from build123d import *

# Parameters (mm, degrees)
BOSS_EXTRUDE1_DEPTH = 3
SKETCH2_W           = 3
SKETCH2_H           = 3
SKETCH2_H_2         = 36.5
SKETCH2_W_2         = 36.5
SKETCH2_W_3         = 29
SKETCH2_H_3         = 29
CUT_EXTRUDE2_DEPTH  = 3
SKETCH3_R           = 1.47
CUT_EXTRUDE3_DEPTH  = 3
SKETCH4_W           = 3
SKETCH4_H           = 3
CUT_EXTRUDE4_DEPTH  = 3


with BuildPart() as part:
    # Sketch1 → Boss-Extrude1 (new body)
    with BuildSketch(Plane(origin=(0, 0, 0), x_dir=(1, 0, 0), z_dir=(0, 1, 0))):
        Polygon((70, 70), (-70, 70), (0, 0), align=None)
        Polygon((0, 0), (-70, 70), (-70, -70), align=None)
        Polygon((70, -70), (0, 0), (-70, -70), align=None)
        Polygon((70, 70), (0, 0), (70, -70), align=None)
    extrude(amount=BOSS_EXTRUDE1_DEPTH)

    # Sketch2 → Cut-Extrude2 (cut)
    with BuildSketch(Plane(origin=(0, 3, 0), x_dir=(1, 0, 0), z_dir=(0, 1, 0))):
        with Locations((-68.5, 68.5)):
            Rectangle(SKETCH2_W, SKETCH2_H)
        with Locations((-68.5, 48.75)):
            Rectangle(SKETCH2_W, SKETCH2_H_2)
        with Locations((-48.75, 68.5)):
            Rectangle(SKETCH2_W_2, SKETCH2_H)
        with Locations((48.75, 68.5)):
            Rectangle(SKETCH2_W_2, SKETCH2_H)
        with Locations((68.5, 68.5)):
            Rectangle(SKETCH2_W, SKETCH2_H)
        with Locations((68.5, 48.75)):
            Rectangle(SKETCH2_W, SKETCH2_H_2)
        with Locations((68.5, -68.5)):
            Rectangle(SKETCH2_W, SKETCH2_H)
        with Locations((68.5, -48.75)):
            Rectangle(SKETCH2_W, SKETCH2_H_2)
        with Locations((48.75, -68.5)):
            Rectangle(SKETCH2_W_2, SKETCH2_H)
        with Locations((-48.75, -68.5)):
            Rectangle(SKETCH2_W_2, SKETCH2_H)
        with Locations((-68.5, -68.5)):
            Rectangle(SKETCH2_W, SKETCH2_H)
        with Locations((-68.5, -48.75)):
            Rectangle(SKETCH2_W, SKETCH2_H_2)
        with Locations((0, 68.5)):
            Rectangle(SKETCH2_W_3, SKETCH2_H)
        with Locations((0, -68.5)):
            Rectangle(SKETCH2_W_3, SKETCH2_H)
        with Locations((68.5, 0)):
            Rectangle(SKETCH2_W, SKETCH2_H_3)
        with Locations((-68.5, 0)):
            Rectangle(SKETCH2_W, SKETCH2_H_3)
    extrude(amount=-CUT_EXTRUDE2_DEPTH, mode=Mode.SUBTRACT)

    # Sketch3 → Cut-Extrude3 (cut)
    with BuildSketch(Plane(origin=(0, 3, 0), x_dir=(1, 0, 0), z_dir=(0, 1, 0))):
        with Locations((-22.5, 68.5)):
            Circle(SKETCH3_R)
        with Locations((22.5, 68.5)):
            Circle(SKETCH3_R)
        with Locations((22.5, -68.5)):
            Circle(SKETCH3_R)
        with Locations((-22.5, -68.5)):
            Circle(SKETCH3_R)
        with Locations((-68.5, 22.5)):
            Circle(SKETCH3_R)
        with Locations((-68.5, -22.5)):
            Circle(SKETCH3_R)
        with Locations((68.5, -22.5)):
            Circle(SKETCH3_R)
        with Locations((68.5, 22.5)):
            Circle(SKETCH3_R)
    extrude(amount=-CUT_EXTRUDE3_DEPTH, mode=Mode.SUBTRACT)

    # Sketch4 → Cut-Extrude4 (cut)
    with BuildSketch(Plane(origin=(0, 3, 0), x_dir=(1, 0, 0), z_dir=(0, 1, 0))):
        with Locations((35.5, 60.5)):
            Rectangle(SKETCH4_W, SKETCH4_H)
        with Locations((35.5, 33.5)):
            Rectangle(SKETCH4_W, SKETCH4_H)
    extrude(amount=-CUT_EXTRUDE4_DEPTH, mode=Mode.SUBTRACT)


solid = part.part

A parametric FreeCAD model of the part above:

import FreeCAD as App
import Part
import Sketcher
Q = App.Units.Quantity

doc = App.newDocument("Part")
body = doc.addObject("PartDesign::Body", "Body")

# Sketch on XZ plane
sketch1 = body.newObject("Sketcher::SketchObject", "Sketch")
sketch1.AttachmentSupport = (doc.getObject("XZ_Plane"), [""])
sketch1.MapMode = "FlatFace"
sketch1.addGeometry(Part.LineSegment(App.Vector(70, -70, 0), App.Vector(-70, -70, 0)), False)
sketch1.addGeometry(Part.LineSegment(App.Vector(-70, -70, 0), App.Vector(-70, 70, 0)), False)
sketch1.addGeometry(Part.LineSegment(App.Vector(-70, 70, 0), App.Vector(70, 70, 0)), False)
sketch1.addGeometry(Part.LineSegment(App.Vector(70, 70, 0), App.Vector(70, -70, 0)), False)
sketch1.addConstraint(Sketcher.Constraint("Coincident", 0, 2, 1, 1))
sketch1.addConstraint(Sketcher.Constraint("Coincident", 1, 2, 2, 1))
sketch1.addConstraint(Sketcher.Constraint("Coincident", 2, 2, 3, 1))
sketch1.addConstraint(Sketcher.Constraint("Coincident", 3, 2, 0, 1))
sketch1.addConstraint(Sketcher.Constraint("Horizontal", 0))
sketch1.addConstraint(Sketcher.Constraint("Vertical", 1))
sketch1.addConstraint(Sketcher.Constraint("Horizontal", 2))
sketch1.addConstraint(Sketcher.Constraint("Vertical", 3))
sketch1.addConstraint(Sketcher.Constraint("Symmetric", 0, 2, 2, 2, -1, 1))
sketch1.addConstraint(Sketcher.Constraint("Equal", 2, 1))
sketch1.addConstraint(Sketcher.Constraint("DistanceX", 0, 2, 0, 1, Q("140 mm")))
pad1 = body.newObject("PartDesign::Pad", "Pad")
pad1.Profile = sketch1
pad1.Length = 3
pad1.Reversed = True

# Sketch on XZ plane
sketch2 = body.newObject("Sketcher::SketchObject", "Sketch001")
sketch2.AttachmentSupport = (doc.getObject("XZ_Plane"), [""])
sketch2.MapMode = "FlatFace"
sketch2.AttachmentOffset = App.Placement(App.Vector(0, 0, -3), App.Rotation())
sketch2.addGeometry(Part.LineSegment(App.Vector(-70, -70, 0), App.Vector(-70, -30.5, 0)), False)
sketch2.addGeometry(Part.LineSegment(App.Vector(-70, -30.5, 0), App.Vector(-67, -30.5, 0)), False)
sketch2.addGeometry(Part.LineSegment(App.Vector(-67, -30.5, 0), App.Vector(-67, -67, 0)), False)
sketch2.addGeometry(Part.LineSegment(App.Vector(-67, -67, 0), App.Vector(-30.5, -67, 0)), False)
sketch2.addGeometry(Part.LineSegment(App.Vector(-30.5, -67, 0), App.Vector(-30.5, -70, 0)), False)
sketch2.addGeometry(Part.LineSegment(App.Vector(-30.5, -70, 0), App.Vector(-70, -70, 0)), False)
sketch2.addGeometry(Part.LineSegment(App.Vector(30.5, -70, 0), App.Vector(30.5, -67, 0)), False)
sketch2.addGeometry(Part.LineSegment(App.Vector(30.5, -67, 0), App.Vector(67, -67, 0)), False)
sketch2.addGeometry(Part.LineSegment(App.Vector(67, -67, 0), App.Vector(67, -30.5, 0)), False)
sketch2.addGeometry(Part.LineSegment(App.Vector(67, -30.5, 0), App.Vector(70, -30.5, 0)), False)
sketch2.addGeometry(Part.LineSegment(App.Vector(70, -30.5, 0), App.Vector(70, -70, 0)), False)
sketch2.addGeometry(Part.LineSegment(App.Vector(70, -70, 0), App.Vector(30.5, -70, 0)), False)
sketch2.addGeometry(Part.LineSegment(App.Vector(70, 70, 0), App.Vector(70, 30.5, 0)), False)
sketch2.addGeometry(Part.LineSegment(App.Vector(70, 30.5, 0), App.Vector(67, 30.5, 0)), False)
sketch2.addGeometry(Part.LineSegment(App.Vector(67, 30.5, 0), App.Vector(67, 67, 0)), False)
sketch2.addGeometry(Part.LineSegment(App.Vector(67, 67, 0), App.Vector(30.5, 67, 0)), False)
sketch2.addGeometry(Part.LineSegment(App.Vector(30.5, 67, 0), App.Vector(30.5, 70, 0)), False)
sketch2.addGeometry(Part.LineSegment(App.Vector(30.5, 70, 0), App.Vector(70, 70, 0)), False)
sketch2.addGeometry(Part.LineSegment(App.Vector(-30.5, 70, 0), App.Vector(-30.5, 67, 0)), False)
sketch2.addGeometry(Part.LineSegment(App.Vector(-30.5, 67, 0), App.Vector(-67, 67, 0)), False)
sketch2.addGeometry(Part.LineSegment(App.Vector(-67, 67, 0), App.Vector(-67, 30.5, 0)), False)
sketch2.addGeometry(Part.LineSegment(App.Vector(-67, 30.5, 0), App.Vector(-70, 30.5, 0)), False)
sketch2.addGeometry(Part.LineSegment(App.Vector(-70, 30.5, 0), App.Vector(-70, 70, 0)), False)
sketch2.addGeometry(Part.LineSegment(App.Vector(-70, 70, 0), App.Vector(-30.5, 70, 0)), False)
sketch2.addGeometry(Part.LineSegment(App.Vector(-14.5, -70, 0), App.Vector(-14.5, -67, 0)), False)
sketch2.addGeometry(Part.LineSegment(App.Vector(-14.5, -67, 0), App.Vector(14.5, -67, 0)), False)
sketch2.addGeometry(Part.LineSegment(App.Vector(14.5, -67, 0), App.Vector(14.5, -70, 0)), False)
sketch2.addGeometry(Part.LineSegment(App.Vector(14.5, -70, 0), App.Vector(-14.5, -70, 0)), False)
sketch2.addGeometry(Part.LineSegment(App.Vector(-14.5, 67, 0), App.Vector(-14.5, 70, 0)), False)
sketch2.addGeometry(Part.LineSegment(App.Vector(-14.5, 70, 0), App.Vector(14.5, 70, 0)), False)
sketch2.addGeometry(Part.LineSegment(App.Vector(14.5, 70, 0), App.Vector(14.5, 67, 0)), False)
sketch2.addGeometry(Part.LineSegment(App.Vector(14.5, 67, 0), App.Vector(-14.5, 67, 0)), False)
sketch2.addGeometry(Part.LineSegment(App.Vector(67, -14.5, 0), App.Vector(67, 14.5, 0)), False)
sketch2.addGeometry(Part.LineSegment(App.Vector(67, 14.5, 0), App.Vector(70, 14.5, 0)), False)
sketch2.addGeometry(Part.LineSegment(App.Vector(70, 14.5, 0), App.Vector(70, -14.5, 0)), False)
sketch2.addGeometry(Part.LineSegment(App.Vector(70, -14.5, 0), App.Vector(67, -14.5, 0)), False)
sketch2.addGeometry(Part.LineSegment(App.Vector(-70, -14.5, 0), App.Vector(-70, 14.5, 0)), False)
sketch2.addGeometry(Part.LineSegment(App.Vector(-70, 14.5, 0), App.Vector(-67, 14.5, 0)), False)
sketch2.addGeometry(Part.LineSegment(App.Vector(-67, 14.5, 0), App.Vector(-67, -14.5, 0)), False)
sketch2.addGeometry(Part.LineSegment(App.Vector(-67, -14.5, 0), App.Vector(-70, -14.5, 0)), False)
sketch2.addConstraint(Sketcher.Constraint("Coincident", 0, 2, 1, 1))
sketch2.addConstraint(Sketcher.Constraint("Coincident", 1, 2, 2, 1))
sketch2.addConstraint(Sketcher.Constraint("Coincident", 2, 2, 3, 1))
sketch2.addConstraint(Sketcher.Constraint("Coincident", 3, 2, 4, 1))
sketch2.addConstraint(Sketcher.Constraint("Coincident", 4, 2, 5, 1))
sketch2.addConstraint(Sketcher.Constraint("Coincident", 5, 2, 0, 1))
sketch2.addConstraint(Sketcher.Constraint("Coincident", 6, 2, 7, 1))
sketch2.addConstraint(Sketcher.Constraint("Coincident", 7, 2, 8, 1))
sketch2.addConstraint(Sketcher.Constraint("Coincident", 8, 2, 9, 1))
sketch2.addConstraint(Sketcher.Constraint("Coincident", 9, 2, 10, 1))
sketch2.addConstraint(Sketcher.Constraint("Coincident", 10, 2, 11, 1))
sketch2.addConstraint(Sketcher.Constraint("Coincident", 11, 2, 6, 1))
sketch2.addConstraint(Sketcher.Constraint("Coincident", 12, 2, 13, 1))
sketch2.addConstraint(Sketcher.Constraint("Coincident", 13, 2, 14, 1))
sketch2.addConstraint(Sketcher.Constraint("Coincident", 14, 2, 15, 1))
sketch2.addConstraint(Sketcher.Constraint("Coincident", 15, 2, 16, 1))
sketch2.addConstraint(Sketcher.Constraint("Coincident", 16, 2, 17, 1))
sketch2.addConstraint(Sketcher.Constraint("Coincident", 17, 2, 12, 1))
sketch2.addConstraint(Sketcher.Constraint("Coincident", 18, 2, 19, 1))
sketch2.addConstraint(Sketcher.Constraint("Coincident", 19, 2, 20, 1))
sketch2.addConstraint(Sketcher.Constraint("Coincident", 20, 2, 21, 1))
sketch2.addConstraint(Sketcher.Constraint("Coincident", 21, 2, 22, 1))
sketch2.addConstraint(Sketcher.Constraint("Coincident", 22, 2, 23, 1))
sketch2.addConstraint(Sketcher.Constraint("Coincident", 23, 2, 18, 1))
sketch2.addConstraint(Sketcher.Constraint("Coincident", 24, 2, 25, 1))
sketch2.addConstraint(Sketcher.Constraint("Coincident", 25, 2, 26, 1))
sketch2.addConstraint(Sketcher.Constraint("Coincident", 26, 2, 27, 1))
sketch2.addConstraint(Sketcher.Constraint("Coincident", 27, 2, 24, 1))
sketch2.addConstraint(Sketcher.Constraint("Coincident", 28, 2, 29, 1))
sketch2.addConstraint(Sketcher.Constraint("Coincident", 29, 2, 30, 1))
sketch2.addConstraint(Sketcher.Constraint("Coincident", 30, 2, 31, 1))
sketch2.addConstraint(Sketcher.Constraint("Coincident", 31, 2, 28, 1))
sketch2.addConstraint(Sketcher.Constraint("Coincident", 32, 2, 33, 1))
sketch2.addConstraint(Sketcher.Constraint("Coincident", 33, 2, 34, 1))
sketch2.addConstraint(Sketcher.Constraint("Coincident", 34, 2, 35, 1))
sketch2.addConstraint(Sketcher.Constraint("Coincident", 35, 2, 32, 1))
sketch2.addConstraint(Sketcher.Constraint("Coincident", 36, 2, 37, 1))
sketch2.addConstraint(Sketcher.Constraint("Coincident", 37, 2, 38, 1))
sketch2.addConstraint(Sketcher.Constraint("Coincident", 38, 2, 39, 1))
sketch2.addConstraint(Sketcher.Constraint("Coincident", 39, 2, 36, 1))
sketch2.addConstraint(Sketcher.Constraint("Vertical", 0))
sketch2.addConstraint(Sketcher.Constraint("Horizontal", 1))
sketch2.addConstraint(Sketcher.Constraint("Vertical", 2))
sketch2.addConstraint(Sketcher.Constraint("Horizontal", 3))
sketch2.addConstraint(Sketcher.Constraint("Vertical", 4))
sketch2.addConstraint(Sketcher.Constraint("Horizontal", 5))
sketch2.addConstraint(Sketcher.Constraint("Vertical", 6))
sketch2.addConstraint(Sketcher.Constraint("Horizontal", 7))
sketch2.addConstraint(Sketcher.Constraint("Vertical", 8))
sketch2.addConstraint(Sketcher.Constraint("Horizontal", 9))
sketch2.addConstraint(Sketcher.Constraint("Vertical", 10))
sketch2.addConstraint(Sketcher.Constraint("Horizontal", 11))
sketch2.addConstraint(Sketcher.Constraint("Vertical", 12))
sketch2.addConstraint(Sketcher.Constraint("Horizontal", 13))
sketch2.addConstraint(Sketcher.Constraint("Vertical", 14))
sketch2.addConstraint(Sketcher.Constraint("Horizontal", 15))
sketch2.addConstraint(Sketcher.Constraint("Vertical", 16))
sketch2.addConstraint(Sketcher.Constraint("Horizontal", 17))
sketch2.addConstraint(Sketcher.Constraint("Vertical", 18))
sketch2.addConstraint(Sketcher.Constraint("Horizontal", 19))
sketch2.addConstraint(Sketcher.Constraint("Vertical", 20))
sketch2.addConstraint(Sketcher.Constraint("Horizontal", 21))
sketch2.addConstraint(Sketcher.Constraint("Vertical", 22))
sketch2.addConstraint(Sketcher.Constraint("Horizontal", 23))
sketch2.addConstraint(Sketcher.Constraint("Vertical", 24))
sketch2.addConstraint(Sketcher.Constraint("Horizontal", 25))
sketch2.addConstraint(Sketcher.Constraint("Vertical", 26))
sketch2.addConstraint(Sketcher.Constraint("Horizontal", 27))
sketch2.addConstraint(Sketcher.Constraint("Vertical", 28))
sketch2.addConstraint(Sketcher.Constraint("Horizontal", 29))
sketch2.addConstraint(Sketcher.Constraint("Vertical", 30))
sketch2.addConstraint(Sketcher.Constraint("Horizontal", 31))
sketch2.addConstraint(Sketcher.Constraint("Vertical", 32))
sketch2.addConstraint(Sketcher.Constraint("Horizontal", 33))
sketch2.addConstraint(Sketcher.Constraint("Vertical", 34))
sketch2.addConstraint(Sketcher.Constraint("Horizontal", 35))
sketch2.addConstraint(Sketcher.Constraint("Vertical", 36))
sketch2.addConstraint(Sketcher.Constraint("Horizontal", 37))
sketch2.addConstraint(Sketcher.Constraint("Vertical", 38))
sketch2.addConstraint(Sketcher.Constraint("Horizontal", 39))
sketch2.addConstraint(Sketcher.Constraint("Symmetric", 0, 2, 12, 2, -1, 1))
sketch2.addConstraint(Sketcher.Constraint("Symmetric", 2, 2, 14, 2, -1, 1))
sketch2.addConstraint(Sketcher.Constraint("Symmetric", 4, 2, 16, 2, -1, 1))
sketch2.addConstraint(Sketcher.Constraint("Symmetric", 6, 2, 18, 2, -1, 1))
sketch2.addConstraint(Sketcher.Constraint("Symmetric", 8, 2, 20, 2, -1, 1))
sketch2.addConstraint(Sketcher.Constraint("Symmetric", 10, 2, 22, 2, -1, 1))
sketch2.addConstraint(Sketcher.Constraint("Symmetric", 26, 2, 28, 2, -1, 1))
sketch2.addConstraint(Sketcher.Constraint("Symmetric", 24, 2, 30, 2, -1, 1))
sketch2.addConstraint(Sketcher.Constraint("Symmetric", 34, 2, 36, 2, -1, 1))
sketch2.addConstraint(Sketcher.Constraint("Symmetric", 32, 2, 38, 2, -1, 1))
sketch2.addConstraint(Sketcher.Constraint("Symmetric", 3, 2, 6, 2, -2))
sketch2.addConstraint(Sketcher.Constraint("Symmetric", 1, 2, 8, 2, -2))
sketch2.addConstraint(Sketcher.Constraint("Symmetric", 5, 2, 10, 2, -2))
sketch2.addConstraint(Sketcher.Constraint("Horizontal", 7, 2, 24, 2))
sketch2.addConstraint(Sketcher.Constraint("Horizontal", 11, 2, 26, 2))
sketch2.addConstraint(Sketcher.Constraint("Horizontal", 33, 2, 36, 2))
sketch2.addConstraint(Sketcher.Constraint("Vertical", 27, 2, 28, 2))
sketch2.addConstraint(Sketcher.Constraint("Vertical", 14, 2, 32, 2))
sketch2.addConstraint(Sketcher.Constraint("Vertical", 17, 2, 33, 2))
sketch2.addConstraint(Sketcher.Constraint("Equal", 23, 0))
sketch2.addConstraint(Sketcher.Constraint("Equal", 19, 2))
sketch2.addConstraint(Sketcher.Constraint("Equal", 31, 32))
sketch2.addConstraint(Sketcher.Constraint("DistanceX", 1, 1, 1, 2, Q("3 mm")))
sketch2.addConstraint(Sketcher.Constraint("DistanceX", 25, 1, 25, 2, Q("29 mm")))
sketch2.addConstraint(Sketcher.Constraint("DistanceX", 3, 1, 3, 2, Q("36.5 mm")))
sketch2.addConstraint(Sketcher.Constraint("DistanceX", 0, 2, -1, 1, Q("70 mm")))
sketch2.addConstraint(Sketcher.Constraint("DistanceY", 2, 2, -1, 1, Q("67 mm")))
pocket1 = body.newObject("PartDesign::Pocket", "Pocket")
pocket1.Profile = sketch2
pocket1.Length = 3
pocket1.Reversed = True

# Sketch on XZ plane
sketch3 = body.newObject("Sketcher::SketchObject", "Sketch002")
sketch3.AttachmentSupport = (doc.getObject("XZ_Plane"), [""])
sketch3.MapMode = "FlatFace"
sketch3.AttachmentOffset = App.Placement(App.Vector(0, 0, -3), App.Rotation())
sketch3.addGeometry(Part.Circle(App.Vector(-22.5, -68.5, 0), App.Vector(0, 0, 1), 1.5), False)
sketch3.addGeometry(Part.Circle(App.Vector(22.5, -68.5, 0), App.Vector(0, 0, 1), 1.5), False)
sketch3.addGeometry(Part.Circle(App.Vector(22.5, 68.5, 0), App.Vector(0, 0, 1), 1.5), False)
sketch3.addGeometry(Part.Circle(App.Vector(-22.5, 68.5, 0), App.Vector(0, 0, 1), 1.5), False)
sketch3.addGeometry(Part.Circle(App.Vector(-68.5, -22.5, 0), App.Vector(0, 0, 1), 1.5), False)
sketch3.addGeometry(Part.Circle(App.Vector(-68.5, 22.5, 0), App.Vector(0, 0, 1), 1.5), False)
sketch3.addGeometry(Part.Circle(App.Vector(68.5, 22.5, 0), App.Vector(0, 0, 1), 1.5), False)
sketch3.addGeometry(Part.Circle(App.Vector(68.5, -22.5, 0), App.Vector(0, 0, 1), 1.5), False)
sketch3.addConstraint(Sketcher.Constraint("Equal", 0, 1))
sketch3.addConstraint(Sketcher.Constraint("Equal", 1, 2))
sketch3.addConstraint(Sketcher.Constraint("Equal", 2, 3))
sketch3.addConstraint(Sketcher.Constraint("Equal", 3, 4))
sketch3.addConstraint(Sketcher.Constraint("Equal", 4, 5))
sketch3.addConstraint(Sketcher.Constraint("Equal", 5, 6))
sketch3.addConstraint(Sketcher.Constraint("Equal", 6, 7))
sketch3.addConstraint(Sketcher.Constraint("Symmetric", 0, 3, 2, 3, -1, 1))
sketch3.addConstraint(Sketcher.Constraint("Symmetric", 1, 3, 3, 3, -1, 1))
sketch3.addConstraint(Sketcher.Constraint("Symmetric", 4, 3, 6, 3, -1, 1))
sketch3.addConstraint(Sketcher.Constraint("Symmetric", 5, 3, 7, 3, -1, 1))
sketch3.addConstraint(Sketcher.Constraint("Symmetric", 0, 3, 1, 3, -2))
sketch3.addConstraint(Sketcher.Constraint("Symmetric", 5, 3, 6, 3, -2))
sketch3.addConstraint(Sketcher.Constraint("Diameter", 0, Q("2.94 mm")))
sketch3.addConstraint(Sketcher.Constraint("DistanceX", 0, 3, 1, 3, Q("45 mm")))
sketch3.addConstraint(Sketcher.Constraint("DistanceY", 1, 3, 2, 3, Q("137 mm")))
sketch3.addConstraint(Sketcher.Constraint("DistanceX", 4, 3, 0, 3, Q("46 mm")))
sketch3.addConstraint(Sketcher.Constraint("DistanceY", 0, 3, 4, 3, Q("46 mm")))
pocket2 = body.newObject("PartDesign::Pocket", "Pocket001")
pocket2.Profile = sketch3
pocket2.Length = 3
pocket2.Reversed = True

# Sketch on XZ plane
sketch4 = body.newObject("Sketcher::SketchObject", "Sketch003")
sketch4.AttachmentSupport = (doc.getObject("XZ_Plane"), [""])
sketch4.MapMode = "FlatFace"
sketch4.AttachmentOffset = App.Placement(App.Vector(0, 0, -3), App.Rotation())
sketch4.addGeometry(Part.LineSegment(App.Vector(34, -62, 0), App.Vector(34, -59, 0)), False)
sketch4.addGeometry(Part.LineSegment(App.Vector(34, -59, 0), App.Vector(37, -59, 0)), False)
sketch4.addGeometry(Part.LineSegment(App.Vector(37, -59, 0), App.Vector(37, -62, 0)), False)
sketch4.addGeometry(Part.LineSegment(App.Vector(37, -62, 0), App.Vector(34, -62, 0)), False)
sketch4.addGeometry(Part.LineSegment(App.Vector(34, -35, 0), App.Vector(34, -32, 0)), False)
sketch4.addGeometry(Part.LineSegment(App.Vector(34, -32, 0), App.Vector(37, -32, 0)), False)
sketch4.addGeometry(Part.LineSegment(App.Vector(37, -32, 0), App.Vector(37, -35, 0)), False)
sketch4.addGeometry(Part.LineSegment(App.Vector(37, -35, 0), App.Vector(34, -35, 0)), False)
sketch4.addConstraint(Sketcher.Constraint("Coincident", 0, 2, 1, 1))
sketch4.addConstraint(Sketcher.Constraint("Coincident", 1, 2, 2, 1))
sketch4.addConstraint(Sketcher.Constraint("Coincident", 2, 2, 3, 1))
sketch4.addConstraint(Sketcher.Constraint("Coincident", 3, 2, 0, 1))
sketch4.addConstraint(Sketcher.Constraint("Coincident", 4, 2, 5, 1))
sketch4.addConstraint(Sketcher.Constraint("Coincident", 5, 2, 6, 1))
sketch4.addConstraint(Sketcher.Constraint("Coincident", 6, 2, 7, 1))
sketch4.addConstraint(Sketcher.Constraint("Coincident", 7, 2, 4, 1))
sketch4.addConstraint(Sketcher.Constraint("Vertical", 0))
sketch4.addConstraint(Sketcher.Constraint("Horizontal", 1))
sketch4.addConstraint(Sketcher.Constraint("Vertical", 2))
sketch4.addConstraint(Sketcher.Constraint("Horizontal", 3))
sketch4.addConstraint(Sketcher.Constraint("Vertical", 4))
sketch4.addConstraint(Sketcher.Constraint("Horizontal", 5))
sketch4.addConstraint(Sketcher.Constraint("Vertical", 6))
sketch4.addConstraint(Sketcher.Constraint("Horizontal", 7))
sketch4.addConstraint(Sketcher.Constraint("Vertical", 3, 2, 4, 2))
sketch4.addConstraint(Sketcher.Constraint("Vertical", 2, 2, 5, 2))
sketch4.addConstraint(Sketcher.Constraint("Equal", 7, 0))
sketch4.addConstraint(Sketcher.Constraint("Equal", 2, 4))
sketch4.addConstraint(Sketcher.Constraint("DistanceX", 1, 1, 1, 2, Q("3 mm")))
sketch4.addConstraint(Sketcher.Constraint("DistanceX", -1, 1, 0, 2, Q("34 mm")))
sketch4.addConstraint(Sketcher.Constraint("DistanceY", 0, 2, -1, 1, Q("59 mm")))
sketch4.addConstraint(Sketcher.Constraint("DistanceY", 4, 2, -1, 1, Q("32 mm")))
pocket3 = body.newObject("PartDesign::Pocket", "Pocket002")
pocket3.Profile = sketch4
pocket3.Length = 3
pocket3.Reversed = True

doc.recompute()
